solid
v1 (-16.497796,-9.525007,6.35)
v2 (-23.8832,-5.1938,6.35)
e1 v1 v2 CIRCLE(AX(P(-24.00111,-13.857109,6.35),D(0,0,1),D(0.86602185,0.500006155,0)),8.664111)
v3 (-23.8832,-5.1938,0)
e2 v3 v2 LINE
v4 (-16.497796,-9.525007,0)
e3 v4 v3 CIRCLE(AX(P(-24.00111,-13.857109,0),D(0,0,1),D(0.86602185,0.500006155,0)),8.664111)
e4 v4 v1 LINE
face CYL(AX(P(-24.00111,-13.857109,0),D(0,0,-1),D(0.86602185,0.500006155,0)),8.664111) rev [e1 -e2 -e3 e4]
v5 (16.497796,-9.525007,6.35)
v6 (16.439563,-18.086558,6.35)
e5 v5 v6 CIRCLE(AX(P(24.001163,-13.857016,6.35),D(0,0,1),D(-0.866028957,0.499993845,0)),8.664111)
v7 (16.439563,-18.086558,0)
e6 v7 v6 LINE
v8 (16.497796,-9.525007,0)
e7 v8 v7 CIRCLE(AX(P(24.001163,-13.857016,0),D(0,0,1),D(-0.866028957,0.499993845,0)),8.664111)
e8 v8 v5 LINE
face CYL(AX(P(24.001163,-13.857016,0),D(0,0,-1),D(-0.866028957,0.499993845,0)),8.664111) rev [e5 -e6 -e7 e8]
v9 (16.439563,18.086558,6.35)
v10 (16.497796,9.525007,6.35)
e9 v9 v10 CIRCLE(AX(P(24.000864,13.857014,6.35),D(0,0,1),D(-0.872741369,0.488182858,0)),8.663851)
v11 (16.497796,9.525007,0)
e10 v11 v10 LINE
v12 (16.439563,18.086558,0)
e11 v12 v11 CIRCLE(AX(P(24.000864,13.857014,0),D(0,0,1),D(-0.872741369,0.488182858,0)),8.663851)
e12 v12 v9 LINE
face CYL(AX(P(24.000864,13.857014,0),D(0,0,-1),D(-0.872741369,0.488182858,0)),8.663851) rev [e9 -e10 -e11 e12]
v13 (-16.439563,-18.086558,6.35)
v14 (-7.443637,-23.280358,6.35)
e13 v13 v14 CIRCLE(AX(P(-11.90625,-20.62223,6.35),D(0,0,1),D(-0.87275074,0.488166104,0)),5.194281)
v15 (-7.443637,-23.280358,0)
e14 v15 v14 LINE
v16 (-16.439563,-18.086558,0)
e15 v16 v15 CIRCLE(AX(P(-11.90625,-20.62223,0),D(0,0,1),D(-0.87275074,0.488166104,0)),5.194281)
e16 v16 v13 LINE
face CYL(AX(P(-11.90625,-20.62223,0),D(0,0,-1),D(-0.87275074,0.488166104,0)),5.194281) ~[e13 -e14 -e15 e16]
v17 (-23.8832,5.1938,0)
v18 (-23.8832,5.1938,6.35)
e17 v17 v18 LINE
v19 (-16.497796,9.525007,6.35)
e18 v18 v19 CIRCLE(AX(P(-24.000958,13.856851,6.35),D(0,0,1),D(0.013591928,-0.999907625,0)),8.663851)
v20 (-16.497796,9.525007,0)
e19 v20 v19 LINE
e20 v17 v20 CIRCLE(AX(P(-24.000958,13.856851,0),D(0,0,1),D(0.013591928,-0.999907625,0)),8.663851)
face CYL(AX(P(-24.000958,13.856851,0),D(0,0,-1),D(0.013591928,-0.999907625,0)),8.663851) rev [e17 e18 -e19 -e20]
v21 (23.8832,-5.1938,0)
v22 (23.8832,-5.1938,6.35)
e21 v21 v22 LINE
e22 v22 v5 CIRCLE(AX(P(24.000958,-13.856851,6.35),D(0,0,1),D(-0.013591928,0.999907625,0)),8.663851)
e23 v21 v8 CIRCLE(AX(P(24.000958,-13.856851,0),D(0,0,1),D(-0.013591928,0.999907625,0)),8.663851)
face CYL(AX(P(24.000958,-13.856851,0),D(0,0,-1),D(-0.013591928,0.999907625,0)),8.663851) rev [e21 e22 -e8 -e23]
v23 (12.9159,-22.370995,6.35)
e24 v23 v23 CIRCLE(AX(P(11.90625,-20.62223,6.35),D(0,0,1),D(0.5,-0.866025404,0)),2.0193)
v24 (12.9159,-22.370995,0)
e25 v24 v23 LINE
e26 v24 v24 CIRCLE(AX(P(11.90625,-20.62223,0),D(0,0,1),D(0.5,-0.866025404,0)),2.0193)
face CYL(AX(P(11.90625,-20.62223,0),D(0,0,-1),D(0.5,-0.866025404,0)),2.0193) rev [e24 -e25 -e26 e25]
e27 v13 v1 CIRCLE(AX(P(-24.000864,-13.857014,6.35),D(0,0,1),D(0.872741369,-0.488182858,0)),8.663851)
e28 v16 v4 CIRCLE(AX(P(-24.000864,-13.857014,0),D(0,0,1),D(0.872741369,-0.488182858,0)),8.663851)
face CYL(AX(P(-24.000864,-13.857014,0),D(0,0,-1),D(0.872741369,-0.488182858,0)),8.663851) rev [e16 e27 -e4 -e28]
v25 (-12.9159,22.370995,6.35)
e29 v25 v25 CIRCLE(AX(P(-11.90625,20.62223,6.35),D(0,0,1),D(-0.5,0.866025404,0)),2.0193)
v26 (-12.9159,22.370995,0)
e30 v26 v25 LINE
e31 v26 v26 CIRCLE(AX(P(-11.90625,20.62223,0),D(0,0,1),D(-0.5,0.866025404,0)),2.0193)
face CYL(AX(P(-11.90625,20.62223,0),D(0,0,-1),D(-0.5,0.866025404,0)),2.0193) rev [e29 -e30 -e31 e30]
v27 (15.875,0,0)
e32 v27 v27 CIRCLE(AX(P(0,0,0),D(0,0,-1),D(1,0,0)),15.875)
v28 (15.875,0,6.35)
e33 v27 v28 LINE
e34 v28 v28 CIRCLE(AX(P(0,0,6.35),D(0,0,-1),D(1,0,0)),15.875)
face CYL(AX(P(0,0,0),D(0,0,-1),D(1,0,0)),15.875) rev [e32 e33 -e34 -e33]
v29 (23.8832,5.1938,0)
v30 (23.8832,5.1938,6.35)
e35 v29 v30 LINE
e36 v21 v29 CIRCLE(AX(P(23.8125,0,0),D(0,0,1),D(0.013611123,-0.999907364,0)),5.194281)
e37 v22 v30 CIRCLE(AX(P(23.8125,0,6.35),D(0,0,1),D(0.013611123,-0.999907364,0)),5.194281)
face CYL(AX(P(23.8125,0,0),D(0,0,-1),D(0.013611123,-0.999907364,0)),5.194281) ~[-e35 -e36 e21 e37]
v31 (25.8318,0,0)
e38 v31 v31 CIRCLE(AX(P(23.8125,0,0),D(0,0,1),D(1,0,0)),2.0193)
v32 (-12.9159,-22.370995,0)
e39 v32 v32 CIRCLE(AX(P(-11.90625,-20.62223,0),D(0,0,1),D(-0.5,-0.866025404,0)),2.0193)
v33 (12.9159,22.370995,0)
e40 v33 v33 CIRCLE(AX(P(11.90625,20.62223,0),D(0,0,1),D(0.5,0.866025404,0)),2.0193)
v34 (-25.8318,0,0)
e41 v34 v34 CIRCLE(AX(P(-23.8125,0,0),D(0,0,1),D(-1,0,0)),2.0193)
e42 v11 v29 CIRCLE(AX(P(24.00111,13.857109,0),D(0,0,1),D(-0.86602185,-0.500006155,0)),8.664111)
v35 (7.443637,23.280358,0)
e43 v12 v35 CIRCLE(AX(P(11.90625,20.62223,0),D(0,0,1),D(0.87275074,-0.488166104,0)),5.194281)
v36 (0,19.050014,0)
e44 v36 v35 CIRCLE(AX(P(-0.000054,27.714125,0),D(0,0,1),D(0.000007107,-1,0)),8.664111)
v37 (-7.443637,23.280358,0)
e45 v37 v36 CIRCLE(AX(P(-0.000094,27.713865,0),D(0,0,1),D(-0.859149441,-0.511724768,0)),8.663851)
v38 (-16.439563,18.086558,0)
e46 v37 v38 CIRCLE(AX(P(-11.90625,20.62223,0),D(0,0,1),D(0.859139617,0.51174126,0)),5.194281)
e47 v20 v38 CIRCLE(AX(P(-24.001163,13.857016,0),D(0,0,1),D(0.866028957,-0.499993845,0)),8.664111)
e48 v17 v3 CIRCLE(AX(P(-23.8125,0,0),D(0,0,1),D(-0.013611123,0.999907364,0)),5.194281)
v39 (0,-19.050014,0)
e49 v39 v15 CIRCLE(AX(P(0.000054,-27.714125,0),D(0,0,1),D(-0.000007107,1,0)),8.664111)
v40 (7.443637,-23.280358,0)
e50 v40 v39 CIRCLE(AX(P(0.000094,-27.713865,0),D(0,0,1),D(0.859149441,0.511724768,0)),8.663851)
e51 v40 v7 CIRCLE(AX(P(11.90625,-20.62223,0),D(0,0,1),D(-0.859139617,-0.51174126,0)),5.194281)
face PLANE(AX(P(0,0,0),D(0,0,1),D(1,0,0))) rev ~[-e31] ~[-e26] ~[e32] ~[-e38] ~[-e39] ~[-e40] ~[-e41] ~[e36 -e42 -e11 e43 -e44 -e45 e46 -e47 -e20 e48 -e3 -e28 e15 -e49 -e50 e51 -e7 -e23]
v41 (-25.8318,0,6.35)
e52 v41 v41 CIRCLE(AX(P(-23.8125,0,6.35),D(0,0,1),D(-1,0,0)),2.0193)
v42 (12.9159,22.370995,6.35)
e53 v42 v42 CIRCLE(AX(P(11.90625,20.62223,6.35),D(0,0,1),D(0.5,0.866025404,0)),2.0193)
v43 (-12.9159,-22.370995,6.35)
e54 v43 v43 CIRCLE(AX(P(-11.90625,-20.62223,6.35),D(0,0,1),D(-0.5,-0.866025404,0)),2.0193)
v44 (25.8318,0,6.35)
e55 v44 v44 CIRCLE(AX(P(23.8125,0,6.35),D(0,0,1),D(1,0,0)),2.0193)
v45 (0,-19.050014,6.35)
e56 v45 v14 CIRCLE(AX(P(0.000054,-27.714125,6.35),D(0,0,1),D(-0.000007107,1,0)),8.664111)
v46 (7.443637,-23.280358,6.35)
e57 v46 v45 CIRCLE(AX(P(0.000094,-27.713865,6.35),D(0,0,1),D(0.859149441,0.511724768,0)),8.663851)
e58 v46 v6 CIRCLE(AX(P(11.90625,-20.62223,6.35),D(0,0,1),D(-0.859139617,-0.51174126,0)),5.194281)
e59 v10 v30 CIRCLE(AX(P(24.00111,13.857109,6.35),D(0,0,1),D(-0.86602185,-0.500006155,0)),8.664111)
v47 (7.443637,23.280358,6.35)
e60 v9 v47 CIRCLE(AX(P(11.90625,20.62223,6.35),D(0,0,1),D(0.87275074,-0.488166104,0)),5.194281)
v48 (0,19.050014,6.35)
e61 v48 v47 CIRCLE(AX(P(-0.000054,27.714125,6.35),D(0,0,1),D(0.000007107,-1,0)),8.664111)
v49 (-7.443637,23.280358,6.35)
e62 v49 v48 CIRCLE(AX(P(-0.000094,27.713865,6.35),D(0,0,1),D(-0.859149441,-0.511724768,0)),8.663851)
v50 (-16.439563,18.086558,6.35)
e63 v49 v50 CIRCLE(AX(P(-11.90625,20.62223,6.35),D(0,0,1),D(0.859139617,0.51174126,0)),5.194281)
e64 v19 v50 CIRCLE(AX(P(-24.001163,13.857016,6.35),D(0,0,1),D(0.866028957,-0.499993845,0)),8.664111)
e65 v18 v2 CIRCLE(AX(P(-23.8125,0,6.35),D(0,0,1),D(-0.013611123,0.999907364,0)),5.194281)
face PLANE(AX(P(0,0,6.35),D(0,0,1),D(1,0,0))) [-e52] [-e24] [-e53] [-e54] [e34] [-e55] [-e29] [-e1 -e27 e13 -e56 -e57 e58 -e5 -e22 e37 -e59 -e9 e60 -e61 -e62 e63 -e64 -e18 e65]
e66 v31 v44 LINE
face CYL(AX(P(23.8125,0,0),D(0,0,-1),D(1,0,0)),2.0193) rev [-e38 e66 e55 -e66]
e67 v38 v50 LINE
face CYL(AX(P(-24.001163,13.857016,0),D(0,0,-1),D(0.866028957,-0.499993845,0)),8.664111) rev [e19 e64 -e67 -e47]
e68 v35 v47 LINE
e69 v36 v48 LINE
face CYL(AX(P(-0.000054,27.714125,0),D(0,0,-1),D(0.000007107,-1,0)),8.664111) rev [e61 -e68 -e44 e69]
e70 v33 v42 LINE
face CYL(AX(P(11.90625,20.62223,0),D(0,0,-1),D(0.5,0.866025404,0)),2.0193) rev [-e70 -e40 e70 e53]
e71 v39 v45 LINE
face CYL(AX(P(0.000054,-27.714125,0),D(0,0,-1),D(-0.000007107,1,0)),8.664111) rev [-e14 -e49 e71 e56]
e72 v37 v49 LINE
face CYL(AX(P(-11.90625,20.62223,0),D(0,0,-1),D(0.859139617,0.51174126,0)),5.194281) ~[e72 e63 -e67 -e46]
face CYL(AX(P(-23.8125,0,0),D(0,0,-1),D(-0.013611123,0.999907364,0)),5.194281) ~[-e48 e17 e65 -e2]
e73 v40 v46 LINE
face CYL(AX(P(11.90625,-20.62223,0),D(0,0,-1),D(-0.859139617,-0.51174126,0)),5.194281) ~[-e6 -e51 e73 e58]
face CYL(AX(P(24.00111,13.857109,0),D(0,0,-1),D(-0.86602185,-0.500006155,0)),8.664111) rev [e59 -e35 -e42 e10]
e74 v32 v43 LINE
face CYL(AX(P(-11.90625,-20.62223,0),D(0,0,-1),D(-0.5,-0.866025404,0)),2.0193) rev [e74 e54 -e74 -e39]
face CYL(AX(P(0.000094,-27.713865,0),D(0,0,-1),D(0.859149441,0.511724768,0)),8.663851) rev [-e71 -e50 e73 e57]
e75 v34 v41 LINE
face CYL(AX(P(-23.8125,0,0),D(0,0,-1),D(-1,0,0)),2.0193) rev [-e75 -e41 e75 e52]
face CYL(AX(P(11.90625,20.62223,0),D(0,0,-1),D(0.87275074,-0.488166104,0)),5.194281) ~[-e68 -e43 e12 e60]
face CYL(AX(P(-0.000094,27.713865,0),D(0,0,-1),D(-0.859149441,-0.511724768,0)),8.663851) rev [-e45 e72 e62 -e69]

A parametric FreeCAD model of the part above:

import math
import FreeCAD as App
import Part
import Sketcher

V = App.Vector
Q = App.Units.Quantity

doc = App.newDocument("Part")
body = doc.addObject("PartDesign::Body", "Body")

# Sketch on XY plane
sketch1 = body.newObject("Sketcher::SketchObject", "Sketch")
sketch1.AttachmentSupport = (doc.getObject("XY_Plane"), [""])
sketch1.MapMode = "FlatFace"
sketch1.addGeometry(Part.ArcOfCircle(Part.Circle(V(24, -13.9, 0), V(0, 0, 1), 8.7), math.radians(91), math.radians(150)), False)
sketch1.addGeometry(Part.ArcOfCircle(Part.Circle(V(23.8, 0, 0), V(0, 0, 1), 5.2), math.radians(-89), math.radians(89)), False)
sketch1.addGeometry(Part.ArcOfCircle(Part.Circle(V(24, 13.9, 0), V(0, 0, 1), 8.7), math.radians(-150), math.radians(-91)), False)
sketch1.addGeometry(Part.ArcOfCircle(Part.Circle(V(0, 0, 0), V(0, 0, 1), 19.1), math.radians(30), math.radians(330)), False)
sketch1.addGeometry(Part.Circle(V(0, 0, 0), V(0, 0, 1), 15.9), False)
sketch1.addGeometry(Part.Circle(V(23.8, 0, 0), V(0, 0, 1), 2), False)
sketch1.addConstraint(Sketcher.Constraint("Tangent", 0, 1, 1, 1))
sketch1.addConstraint(Sketcher.Constraint("Tangent", 1, 2, 2, 2))
sketch1.addConstraint(Sketcher.Constraint("Tangent", 2, 1, 3, 1))
sketch1.addConstraint(Sketcher.Constraint("Tangent", 3, 2, 0, 2))
sketch1.addConstraint(Sketcher.Constraint("Coincident", 3, 3, -1, 1))
sketch1.addConstraint(Sketcher.Constraint("Coincident", 4, 3, -1, 1))
sketch1.addConstraint(Sketcher.Constraint("Coincident", 5, 3, 1, 3))
sketch1.addConstraint(Sketcher.Constraint("Equal", 0, 2))
sketch1.addConstraint(Sketcher.Constraint("PointOnObject", 1, 3, -1))
sketch1.addConstraint(Sketcher.Constraint("Diameter", 4, Q("1.25 in")))
sketch1.addConstraint(Sketcher.Constraint("Radius", 3, Q("0.75 in")))
sketch1.addConstraint(Sketcher.Constraint("Diameter", 5, Q("0.159 in")))
sketch1.addConstraint(Sketcher.Constraint("Radius", 0, Q("0.3411 in")))
sketch1.addConstraint(Sketcher.Constraint("DistanceX", -1, 1, 1, 3, Q("0.9375 in")))
sketch1.addConstraint(Sketcher.Constraint("Radius", 1, Q("0.2045 in")))
pad1 = body.newObject("PartDesign::Pad", "Pad")
pad1.Profile = sketch1
pad1.Length = Q("0.25 in")
doc.recompute()

polarpattern = body.newObject("PartDesign::PolarPattern", "PolarPattern")
polarpattern.Originals = [pad1]
polarpattern.Axis = (doc.getObject("Z_Axis"), [""])
polarpattern.Angle = 360
polarpattern.Occurrences = 6
body.Tip = polarpattern

doc.recompute()
